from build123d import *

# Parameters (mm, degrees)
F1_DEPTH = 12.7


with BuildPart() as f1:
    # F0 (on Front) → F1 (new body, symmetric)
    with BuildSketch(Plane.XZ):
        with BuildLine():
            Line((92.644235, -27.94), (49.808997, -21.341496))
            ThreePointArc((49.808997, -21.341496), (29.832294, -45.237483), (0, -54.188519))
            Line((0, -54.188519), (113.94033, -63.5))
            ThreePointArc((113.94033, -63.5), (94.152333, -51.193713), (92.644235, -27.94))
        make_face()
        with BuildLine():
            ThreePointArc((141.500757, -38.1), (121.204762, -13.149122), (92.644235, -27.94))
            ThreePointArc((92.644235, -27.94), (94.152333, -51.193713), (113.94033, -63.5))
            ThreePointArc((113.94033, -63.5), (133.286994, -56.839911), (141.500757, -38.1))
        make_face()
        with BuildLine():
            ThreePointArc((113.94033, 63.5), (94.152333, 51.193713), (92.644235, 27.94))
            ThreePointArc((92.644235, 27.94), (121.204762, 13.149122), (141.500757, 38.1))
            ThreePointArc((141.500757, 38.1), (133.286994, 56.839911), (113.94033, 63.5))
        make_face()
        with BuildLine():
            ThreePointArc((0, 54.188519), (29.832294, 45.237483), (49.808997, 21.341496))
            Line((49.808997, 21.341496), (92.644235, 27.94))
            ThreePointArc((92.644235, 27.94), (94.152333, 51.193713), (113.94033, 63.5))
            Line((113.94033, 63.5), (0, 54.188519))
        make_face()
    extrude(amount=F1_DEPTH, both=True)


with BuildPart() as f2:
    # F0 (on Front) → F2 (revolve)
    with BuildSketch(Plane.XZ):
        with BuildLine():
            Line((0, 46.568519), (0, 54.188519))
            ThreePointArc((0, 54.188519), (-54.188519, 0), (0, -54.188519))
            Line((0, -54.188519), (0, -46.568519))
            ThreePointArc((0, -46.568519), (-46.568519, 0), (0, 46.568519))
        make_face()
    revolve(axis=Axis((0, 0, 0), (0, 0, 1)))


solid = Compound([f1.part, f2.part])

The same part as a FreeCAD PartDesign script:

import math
import FreeCAD as App
import Part
import Sketcher
Q = App.Units.Quantity

doc = App.newDocument("Part")
body = doc.addObject("PartDesign::Body", "Body")
body.AllowCompound = True

sketch1 = doc.addObject("Sketcher::SketchObject", "Sketch")
body.addObject(sketch1)
sketch1.AttachmentSupport = (doc.XZ_Plane, [""])
sketch1.MapMode = "FlatFace"
sketch1.addGeometry([
    Part.LineSegment(App.Vector(93, -28, 0), App.Vector(50, -21, 0)),
    Part.ArcOfCircle(Part.Circle(App.Vector(0, 0, 0), App.Vector(0, 0, 1), 54), math.radians(-90), math.radians(-23)),
    Part.LineSegment(App.Vector(0, -54, 0), App.Vector(114, -64, 0)),
    Part.ArcOfCircle(Part.Circle(App.Vector(116, -38, 0), App.Vector(0, 0, 1), 25), math.radians(-95), math.radians(0)),
    Part.ArcOfCircle(Part.Circle(App.Vector(116, -38, 0), App.Vector(0, 0, 1), 25), math.radians(0), math.radians(157)),
    Part.ArcOfCircle(Part.Circle(App.Vector(116, 38, 0), App.Vector(0, 0, 1), 25), math.radians(-157), math.radians(0)),
    Part.ArcOfCircle(Part.Circle(App.Vector(116, 38, 0), App.Vector(0, 0, 1), 25), math.radians(0), math.radians(95)),
    Part.LineSegment(App.Vector(114, 64, 0), App.Vector(0, 54, 0)),
    Part.ArcOfCircle(Part.Circle(App.Vector(0, 0, 0), App.Vector(0, 0, 1), 54), math.radians(23), math.radians(90)),
    Part.LineSegment(App.Vector(50, 21, 0), App.Vector(93, 28, 0)),
], False)
sketch1.addConstraint([
    Sketcher.Constraint("Coincident", 0, 2, 1, 2),
    Sketcher.Constraint("Coincident", 1, 1, 2, 1),
    Sketcher.Constraint("Tangent", 2, 2, 3, 1),
    Sketcher.Constraint("Tangent", 3, 2, 4, 1),
    Sketcher.Constraint("Coincident", 4, 2, 0, 1),
    Sketcher.Constraint("Tangent", 5, 2, 6, 1),
    Sketcher.Constraint("Tangent", 6, 2, 7, 1),
    Sketcher.Constraint("Coincident", 7, 2, 8, 2),
    Sketcher.Constraint("Coincident", 8, 1, 9, 1),
    Sketcher.Constraint("Coincident", 9, 2, 5, 1),
    Sketcher.Constraint("Coincident", 1, 3, -1, 1),
    Sketcher.Constraint("Coincident", 8, 3, -1, 1),
    Sketcher.Constraint("Equal", 3, 4),
    Sketcher.Constraint("Equal", 4, 5),
    Sketcher.Constraint("Equal", 5, 6),
    Sketcher.Constraint("Equal", 1, 8),
    Sketcher.Constraint("Symmetric", 3, 3, 5, 3, -1),
    Sketcher.Constraint("PointOnObject", 1, 1, -2),
    Sketcher.Constraint("PointOnObject", 7, 2, -2),
    Sketcher.Constraint("Horizontal", 4, 3, 3, 2),
    Sketcher.Constraint("Horizontal", 6, 3, 5, 2),
    Sketcher.Constraint("Vertical", 0, 2, 8, 1),
    Sketcher.Constraint("Vertical", 4, 2, 9, 2),
    Sketcher.Constraint("DistanceY", 3, 3, 5, 3, Q("3 in")),
    Sketcher.Constraint("DistanceY", 2, 2, 4, 3, Q("1 in")),
    Sketcher.Constraint("DistanceY", 4, 2, -1, 1, Q("1.1 in")),
    Sketcher.Constraint("Radius", 1, 54.188518),
    Sketcher.Constraint("DistanceX", -1, 1, 3, 3, 116.01608),
    Sketcher.Constraint("Distance", 0, 43.340488),
])
pad1 = doc.addObject("PartDesign::Pad", "Pad")
body.addObject(pad1)
pad1.Profile = sketch1
pad1.Length = Q("1 in")
pad1.Midplane = True
body2 = doc.addObject("PartDesign::Body", "Body001")

sketch2 = doc.addObject("Sketcher::SketchObject", "Sketch001")
body2.addObject(sketch2)
sketch2.AttachmentSupport = (doc.getObject("XZ_Plane001"), [""])
sketch2.MapMode = "FlatFace"
sketch2.addGeometry([
    Part.LineSegment(App.Vector(0, 47, 0), App.Vector(0, 54, 0)),
    Part.ArcOfCircle(Part.Circle(App.Vector(0, 0, 0), App.Vector(0, 0, 1), 54), math.radians(90), math.radians(270)),
    Part.LineSegment(App.Vector(0, -54, 0), App.Vector(0, -47, 0)),
    Part.ArcOfCircle(Part.Circle(App.Vector(0, 0, 0), App.Vector(0, 0, 1), 47), math.radians(90), math.radians(270)),
], False)
sketch2.addConstraint([
    Sketcher.Constraint("Coincident", 0, 2, 1, 1),
    Sketcher.Constraint("Coincident", 1, 2, 2, 1),
    Sketcher.Constraint("Coincident", 2, 2, 3, 2),
    Sketcher.Constraint("Coincident", 3, 1, 0, 1),
    Sketcher.Constraint("Vertical", 0),
    Sketcher.Constraint("Vertical", 2),
    Sketcher.Constraint("Coincident", 1, 3, -1, 1),
    Sketcher.Constraint("Coincident", 3, 3, -1, 1),
    Sketcher.Constraint("PointOnObject", 0, 2, -2),
    Sketcher.Constraint("PointOnObject", 1, 2, -2),
    Sketcher.Constraint("DistanceY", 0, 1, 0, 2, Q("0.3 in")),
    Sketcher.Constraint("Radius", 1, 54.188519),
])
revolution = doc.addObject("PartDesign::Revolution", "Revolution")
body2.addObject(revolution)
revolution.Profile = sketch2
revolution.ReferenceAxis = (sketch2, ["V_Axis"])
revolution.Angle = 360

doc.recompute()
